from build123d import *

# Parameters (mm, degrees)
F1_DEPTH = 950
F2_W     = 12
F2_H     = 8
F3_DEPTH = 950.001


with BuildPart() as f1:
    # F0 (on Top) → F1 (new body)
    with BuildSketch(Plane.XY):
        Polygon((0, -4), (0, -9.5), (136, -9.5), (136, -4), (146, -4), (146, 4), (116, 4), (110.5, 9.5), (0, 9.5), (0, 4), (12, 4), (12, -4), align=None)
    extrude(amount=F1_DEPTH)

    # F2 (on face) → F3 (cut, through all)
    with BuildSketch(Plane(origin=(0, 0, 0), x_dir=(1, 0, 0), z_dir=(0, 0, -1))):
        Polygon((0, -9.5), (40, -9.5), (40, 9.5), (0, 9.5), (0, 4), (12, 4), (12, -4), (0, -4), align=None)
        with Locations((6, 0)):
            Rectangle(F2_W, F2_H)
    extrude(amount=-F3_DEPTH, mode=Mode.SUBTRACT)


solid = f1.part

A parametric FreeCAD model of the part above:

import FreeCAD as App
import Part
import Sketcher

V = App.Vector
Q = App.Units.Quantity

doc = App.newDocument("Part")
body = doc.addObject("PartDesign::Body", "Body")

# Sketch on XY plane
sketch1 = body.newObject("Sketcher::SketchObject", "Sketch")
sketch1.AttachmentSupport = (doc.getObject("XY_Plane"), [""])
sketch1.MapMode = "FlatFace"
sketch1.addGeometry(Part.LineSegment(V(0, -4, 0), V(0, -10, 0)), False)
sketch1.addGeometry(Part.LineSegment(V(0, -10, 0), V(136, -10, 0)), False)
sketch1.addGeometry(Part.LineSegment(V(136, -10, 0), V(136, -4, 0)), False)
sketch1.addGeometry(Part.LineSegment(V(136, -4, 0), V(146, -4, 0)), False)
sketch1.addGeometry(Part.LineSegment(V(146, -4, 0), V(146, 4, 0)), False)
sketch1.addGeometry(Part.LineSegment(V(146, 4, 0), V(116, 4, 0)), False)
sketch1.addGeometry(Part.LineSegment(V(116, 4, 0), V(110, 10, 0)), False)
sketch1.addGeometry(Part.LineSegment(V(110, 10, 0), V(0, 10, 0)), False)
sketch1.addGeometry(Part.LineSegment(V(0, 10, 0), V(0, 4, 0)), False)
sketch1.addGeometry(Part.LineSegment(V(0, 4, 0), V(12, 4, 0)), False)
sketch1.addGeometry(Part.LineSegment(V(12, 4, 0), V(12, -4, 0)), False)
sketch1.addGeometry(Part.LineSegment(V(12, -4, 0), V(0, -4, 0)), False)
sketch1.addConstraint(Sketcher.Constraint("Coincident", 0, 2, 1, 1))
sketch1.addConstraint(Sketcher.Constraint("Coincident", 1, 2, 2, 1))
sketch1.addConstraint(Sketcher.Constraint("Coincident", 2, 2, 3, 1))
sketch1.addConstraint(Sketcher.Constraint("Coincident", 3, 2, 4, 1))
sketch1.addConstraint(Sketcher.Constraint("Coincident", 4, 2, 5, 1))
sketch1.addConstraint(Sketcher.Constraint("Coincident", 5, 2, 6, 1))
sketch1.addConstraint(Sketcher.Constraint("Coincident", 6, 2, 7, 1))
sketch1.addConstraint(Sketcher.Constraint("Coincident", 7, 2, 8, 1))
sketch1.addConstraint(Sketcher.Constraint("Coincident", 8, 2, 9, 1))
sketch1.addConstraint(Sketcher.Constraint("Coincident", 9, 2, 10, 1))
sketch1.addConstraint(Sketcher.Constraint("Coincident", 10, 2, 11, 1))
sketch1.addConstraint(Sketcher.Constraint("Coincident", 11, 2, 0, 1))
sketch1.addConstraint(Sketcher.Constraint("Vertical", 0))
sketch1.addConstraint(Sketcher.Constraint("Horizontal", 1))
sketch1.addConstraint(Sketcher.Constraint("Vertical", 2))
sketch1.addConstraint(Sketcher.Constraint("Horizontal", 3))
sketch1.addConstraint(Sketcher.Constraint("Vertical", 4))
sketch1.addConstraint(Sketcher.Constraint("Horizontal", 5))
sketch1.addConstraint(Sketcher.Constraint("Horizontal", 7))
sketch1.addConstraint(Sketcher.Constraint("Vertical", 8))
sketch1.addConstraint(Sketcher.Constraint("Horizontal", 9))
sketch1.addConstraint(Sketcher.Constraint("Vertical", 10))
sketch1.addConstraint(Sketcher.Constraint("Horizontal", 11))
sketch1.addConstraint(Sketcher.Constraint("Symmetric", 0, 2, 7, 2, -1, 1))
sketch1.addConstraint(Sketcher.Constraint("Symmetric", 8, 2, 11, 2, -1))
sketch1.addConstraint(Sketcher.Constraint("Horizontal", 5, 2, 8, 2))
sketch1.addConstraint(Sketcher.Constraint("Horizontal", 3, 2, 10, 2))
sketch1.addConstraint(Sketcher.Constraint("DistanceX", 1, 1, 1, 2, 136.0))
sketch1.addConstraint(Sketcher.Constraint("DistanceX", 3, 1, 3, 2, 10.0))
sketch1.addConstraint(Sketcher.Constraint("DistanceX", 5, 2, 5, 1, 30.0))
sketch1.addConstraint(Sketcher.Constraint("DistanceX", 9, 1, 9, 2, 12.0))
sketch1.addConstraint(Sketcher.Constraint("DistanceY", 4, 1, 4, 2, 8.0))
sketch1.addConstraint(Sketcher.Constraint("Angle", 6, Q("135 deg")))
sketch1.addConstraint(Sketcher.Constraint("DistanceX", 7, 2, 7, 1, 110.5))
pad1 = body.newObject("PartDesign::Pad", "Pad")
pad1.Profile = sketch1
pad1.Length = 950

# Sketch on XY plane
sketch2 = body.newObject("Sketcher::SketchObject", "Sketch001")
sketch2.AttachmentSupport = (doc.getObject("XY_Plane"), [""])
sketch2.MapMode = "FlatFace"
sketch2.addGeometry(Part.LineSegment(V(0, 10, 0), V(40, 10, 0)), False)
sketch2.addGeometry(Part.LineSegment(V(40, 10, 0), V(40, -10, 0)), False)
sketch2.addGeometry(Part.LineSegment(V(40, -10, 0), V(0, -10, 0)), False)
sketch2.addGeometry(Part.LineSegment(V(0, -10, 0), V(0, 10, 0)), False)
sketch2.addConstraint(Sketcher.Constraint("Coincident", 0, 2, 1, 1))
sketch2.addConstraint(Sketcher.Constraint("Coincident", 1, 2, 2, 1))
sketch2.addConstraint(Sketcher.Constraint("Coincident", 2, 2, 3, 1))
sketch2.addConstraint(Sketcher.Constraint("Coincident", 3, 2, 0, 1))
sketch2.addConstraint(Sketcher.Constraint("Horizontal", 0))
sketch2.addConstraint(Sketcher.Constraint("Vertical", 1))
sketch2.addConstraint(Sketcher.Constraint("Horizontal", 2))
sketch2.addConstraint(Sketcher.Constraint("Vertical", 3))
sketch2.addConstraint(Sketcher.Constraint("Symmetric", 2, 2, 3, 2, -1, 1))
sketch2.addConstraint(Sketcher.Constraint("DistanceX", 0, 1, 0, 2, 40.0))
sketch2.addConstraint(Sketcher.Constraint("DistanceY", 1, 2, 1, 1, 19.0))
pocket1 = body.newObject("PartDesign::Pocket", "Pocket")
pocket1.Profile = sketch2
pocket1.Type = "ThroughAll"
pocket1.Reversed = True

doc.recompute()
